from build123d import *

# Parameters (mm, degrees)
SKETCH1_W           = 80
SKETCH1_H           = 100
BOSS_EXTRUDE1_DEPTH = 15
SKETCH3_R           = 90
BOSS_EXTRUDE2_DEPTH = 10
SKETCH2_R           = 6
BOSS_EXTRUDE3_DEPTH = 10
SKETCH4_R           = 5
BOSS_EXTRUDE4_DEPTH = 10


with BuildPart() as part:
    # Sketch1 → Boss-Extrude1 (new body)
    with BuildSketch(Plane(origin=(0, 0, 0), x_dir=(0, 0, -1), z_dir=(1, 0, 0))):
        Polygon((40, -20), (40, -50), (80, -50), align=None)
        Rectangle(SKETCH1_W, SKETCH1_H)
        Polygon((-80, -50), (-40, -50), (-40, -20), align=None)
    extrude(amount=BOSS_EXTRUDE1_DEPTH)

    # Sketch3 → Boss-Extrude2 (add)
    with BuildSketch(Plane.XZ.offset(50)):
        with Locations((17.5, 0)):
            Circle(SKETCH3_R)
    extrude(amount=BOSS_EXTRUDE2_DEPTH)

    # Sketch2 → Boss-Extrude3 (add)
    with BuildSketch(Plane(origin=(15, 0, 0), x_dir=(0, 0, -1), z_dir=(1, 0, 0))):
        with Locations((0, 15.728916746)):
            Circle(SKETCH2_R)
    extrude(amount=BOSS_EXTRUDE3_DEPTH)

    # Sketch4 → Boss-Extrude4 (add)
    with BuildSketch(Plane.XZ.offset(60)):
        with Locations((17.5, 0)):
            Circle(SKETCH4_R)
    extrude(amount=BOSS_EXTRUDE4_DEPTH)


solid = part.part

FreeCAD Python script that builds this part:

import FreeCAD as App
import Part
import Sketcher

V = App.Vector


def add_polygon(sketch, points):
    """Adds a closed chain of lines whose ends are joined by coincident constraints."""
    first, n = sketch.GeometryCount, len(points)
    for a, b in zip(points, points[1:] + points[:1]):
        sketch.addGeometry(Part.LineSegment(App.Vector(*a, 0), App.Vector(*b, 0)), False)
    for i in range(n):
        sketch.addConstraint(Sketcher.Constraint("Coincident", first + i, 2, first + (i + 1) % n, 1))

doc = App.newDocument("Part")
params = doc.addObject("Spreadsheet::Sheet", "Params")
for row, (alias, value) in enumerate([
    ("sketch1_width", "70 mm"),
    ("sketch1_height", "80 mm"),
    ("sketch1_height2", "160 mm"),
    ("sketch1_length", "50 mm"),
    ("pad1_length", "15 mm"),
    ("sketch2_diameter", "180 mm"),
    ("pad2_length", "10 mm"),
    ("sketch3_diameter", "12 mm"),
    ("pad3_length", "10 mm"),
    ("sketch4_diameter", "10 mm"),
    ("pad4_length", "10 mm"),
], start=1):
    params.set(f"A{row}", alias)
    params.set(f"B{row}", "=" + value)
    params.setAlias(f"B{row}", alias)

body = doc.addObject("PartDesign::Body", "Body")

# Sketch on YZ plane
sketch1 = doc.addObject("Sketcher::SketchObject", "Sketch")
body.addObject(sketch1)
sketch1.AttachmentSupport = (doc.YZ_Plane, [""])
sketch1.MapMode = "FlatFace"
add_polygon(sketch1, [(-50, -80), (-20, -40), (50, -40), (50, 40), (-20, 40), (-50, 80)])  # lines 0-5
sketch1.addConstraint(Sketcher.Constraint("Horizontal", 1))
sketch1.addConstraint(Sketcher.Constraint("Vertical", 2))
sketch1.addConstraint(Sketcher.Constraint("Horizontal", 3))
sketch1.addConstraint(Sketcher.Constraint("Vertical", 5))
sketch1.addConstraint(Sketcher.Constraint("Symmetric", 0, 2, 3, 2, -1))
sketch1.addConstraint(Sketcher.Constraint("Equal", 0, 4))
sketch1.addConstraint(Sketcher.Constraint("DistanceX", 1, 1, 1, 2, 70.0))
sketch1.addConstraint(Sketcher.Constraint("DistanceY", 2, 1, 2, 2, 80.0))
sketch1.addConstraint(Sketcher.Constraint("DistanceY", 5, 2, 5, 1, 160.0))
sketch1.addConstraint(Sketcher.Constraint("Distance", 0, 50.0))
sketch1.addConstraint(Sketcher.Constraint("DistanceX", 0, 2, -1, 1, 20.0))
sketch1.setExpression("Constraints[12]", "Params.sketch1_width")
sketch1.setExpression("Constraints[13]", "Params.sketch1_height")
sketch1.setExpression("Constraints[14]", "Params.sketch1_height2")
sketch1.setExpression("Constraints[15]", "Params.sketch1_length")
pad1 = doc.addObject("PartDesign::Pad", "Pad")
body.addObject(pad1)
pad1.Profile = sketch1
pad1.setExpression("Length", "Params.pad1_length")

# Sketch on XZ plane
sketch2 = doc.addObject("Sketcher::SketchObject", "Sketch001")
body.addObject(sketch2)
sketch2.AttachmentSupport = (doc.XZ_Plane, [""])
sketch2.MapMode = "FlatFace"
sketch2.AttachmentOffset = App.Placement(V(0, 0, 50), App.Rotation())
sketch2.addGeometry(Part.Circle(V(18, 0, 0), V(0, 0, 1), 90), False)
sketch2.addConstraint(Sketcher.Constraint("PointOnObject", 0, 3, -1))
sketch2.addConstraint(Sketcher.Constraint("Diameter", 0, 180.0))
sketch2.addConstraint(Sketcher.Constraint("DistanceX", -1, 1, 0, 3, 17.5))
sketch2.setExpression("Constraints[1]", "Params.sketch2_diameter")
pad2 = doc.addObject("PartDesign::Pad", "Pad001")
body.addObject(pad2)
pad2.Profile = sketch2
pad2.setExpression("Length", "Params.pad2_length")

# Sketch on YZ plane
sketch3 = doc.addObject("Sketcher::SketchObject", "Sketch002")
body.addObject(sketch3)
sketch3.AttachmentSupport = (doc.YZ_Plane, [""])
sketch3.MapMode = "FlatFace"
sketch3.AttachmentOffset = App.Placement(V(0, 0, 15), App.Rotation())
sketch3.addGeometry(Part.Circle(V(16, 0, 0), V(0, 0, 1), 6), False)
sketch3.addConstraint(Sketcher.Constraint("PointOnObject", 0, 3, -1))
sketch3.addConstraint(Sketcher.Constraint("Diameter", 0, 12.0))
sketch3.addConstraint(Sketcher.Constraint("DistanceX", -1, 1, 0, 3, 15.728917))
sketch3.setExpression("Constraints[1]", "Params.sketch3_diameter")
pad3 = doc.addObject("PartDesign::Pad", "Pad002")
body.addObject(pad3)
pad3.Profile = sketch3
pad3.setExpression("Length", "Params.pad3_length")

# Sketch on XZ plane
sketch4 = doc.addObject("Sketcher::SketchObject", "Sketch003")
body.addObject(sketch4)
sketch4.AttachmentSupport = (doc.XZ_Plane, [""])
sketch4.MapMode = "FlatFace"
sketch4.AttachmentOffset = App.Placement(V(0, 0, 60), App.Rotation())
sketch4.addGeometry(Part.Circle(V(18, 0, 0), V(0, 0, 1), 5), False)
sketch4.addConstraint(Sketcher.Constraint("PointOnObject", 0, 3, -1))
sketch4.addConstraint(Sketcher.Constraint("Diameter", 0, 10.0))
sketch4.addConstraint(Sketcher.Constraint("DistanceX", -1, 1, 0, 3, 17.5))
sketch4.setExpression("Constraints[1]", "Params.sketch4_diameter")
pad4 = doc.addObject("PartDesign::Pad", "Pad003")
body.addObject(pad4)
pad4.Profile = sketch4
pad4.setExpression("Length", "Params.pad4_length")

doc.recompute()
